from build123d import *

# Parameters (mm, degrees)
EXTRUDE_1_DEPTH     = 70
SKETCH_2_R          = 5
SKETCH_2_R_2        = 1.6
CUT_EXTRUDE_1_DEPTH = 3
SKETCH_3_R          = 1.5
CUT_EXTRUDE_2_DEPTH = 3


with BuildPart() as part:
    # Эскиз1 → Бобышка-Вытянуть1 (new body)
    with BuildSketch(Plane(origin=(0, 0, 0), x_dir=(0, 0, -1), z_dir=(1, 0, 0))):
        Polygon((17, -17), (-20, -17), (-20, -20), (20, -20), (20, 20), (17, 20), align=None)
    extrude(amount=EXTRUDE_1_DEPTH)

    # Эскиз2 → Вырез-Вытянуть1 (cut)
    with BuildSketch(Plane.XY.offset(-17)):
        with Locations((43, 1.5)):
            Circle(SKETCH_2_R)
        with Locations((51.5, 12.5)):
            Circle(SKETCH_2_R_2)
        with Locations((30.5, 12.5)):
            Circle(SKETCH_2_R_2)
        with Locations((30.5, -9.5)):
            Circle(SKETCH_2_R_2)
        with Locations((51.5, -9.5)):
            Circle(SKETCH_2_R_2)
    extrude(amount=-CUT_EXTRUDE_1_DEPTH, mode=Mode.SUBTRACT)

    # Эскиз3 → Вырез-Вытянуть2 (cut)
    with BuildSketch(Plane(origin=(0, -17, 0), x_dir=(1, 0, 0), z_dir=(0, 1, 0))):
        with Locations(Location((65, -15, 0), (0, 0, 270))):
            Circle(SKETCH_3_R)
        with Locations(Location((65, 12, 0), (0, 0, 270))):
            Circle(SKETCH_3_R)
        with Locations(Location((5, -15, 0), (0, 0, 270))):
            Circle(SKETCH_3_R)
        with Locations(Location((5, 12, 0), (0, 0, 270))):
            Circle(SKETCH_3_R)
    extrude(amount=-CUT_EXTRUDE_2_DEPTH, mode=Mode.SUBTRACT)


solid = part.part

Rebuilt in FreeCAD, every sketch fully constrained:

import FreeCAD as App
import Part
import Sketcher
Q = App.Units.Quantity


def add_polygon(sketch, points):
    """Adds a closed chain of lines whose ends are joined by coincident constraints."""
    first, n = sketch.GeometryCount, len(points)
    for a, b in zip(points, points[1:] + points[:1]):
        sketch.addGeometry(Part.LineSegment(App.Vector(*a, 0), App.Vector(*b, 0)), False)
    for i in range(n):
        sketch.addConstraint(Sketcher.Constraint("Coincident", first + i, 2, first + (i + 1) % n, 1))

doc = App.newDocument("Part")
body = doc.addObject("PartDesign::Body", "Body")

# Sketch on YZ plane
sketch1 = body.newObject("Sketcher::SketchObject", "Sketch")
sketch1.AttachmentSupport = (doc.getObject("YZ_Plane"), [""])
sketch1.MapMode = "FlatFace"
add_polygon(sketch1, [(-17, -17), (-17, 20), (-20, 20), (-20, -20), (20, -20), (20, -17)])  # lines 0-5
sketch1.addConstraint([
    Sketcher.Constraint("Vertical", 0),
    Sketcher.Constraint("Horizontal", 1),
    Sketcher.Constraint("Vertical", 2),
    Sketcher.Constraint("Horizontal", 3),
    Sketcher.Constraint("Vertical", 4),
    Sketcher.Constraint("Horizontal", 5),
    Sketcher.Constraint("Symmetric", 1, 2, 3, 2, -1, 1),
    Sketcher.Constraint("Equal", 5, 0),
    Sketcher.Constraint("Equal", 3, 2),
    Sketcher.Constraint("DistanceX", 1, 2, 1, 1, Q("3 mm")),
    Sketcher.Constraint("DistanceX", 3, 1, 3, 2, Q("40 mm")),
])
pad1 = body.newObject("PartDesign::Pad", "Pad")
pad1.Profile = sketch1
pad1.Length = 70

# Sketch on XY plane
sketch2 = body.newObject("Sketcher::SketchObject", "Sketch001")
sketch2.AttachmentSupport = (doc.getObject("XY_Plane"), [""])
sketch2.MapMode = "FlatFace"
sketch2.AttachmentOffset = App.Placement(App.Vector(0, 0, -17), App.Rotation())
sketch2.addGeometry([
    Part.Circle(App.Vector(43, 1.5, 0), App.Vector(0, 0, 1), 5),  # 0
    Part.Circle(App.Vector(51.5, 12.5, 0), App.Vector(0, 0, 1), 1.6),  # 1
    Part.Circle(App.Vector(30.5, 12.5, 0), App.Vector(0, 0, 1), 1.6),  # 2
    Part.Circle(App.Vector(30.5, -9.5, 0), App.Vector(0, 0, 1), 1.6),  # 3
    Part.Circle(App.Vector(51.5, -9.5, 0), App.Vector(0, 0, 1), 1.6),  # 4
], False)
sketch2.addConstraint([
    Sketcher.Constraint("Equal", 1, 2),
    Sketcher.Constraint("Equal", 2, 3),
    Sketcher.Constraint("Equal", 3, 4),
    Sketcher.Constraint("Horizontal", 1, 3, 2, 3),
    Sketcher.Constraint("Horizontal", 3, 3, 4, 3),
    Sketcher.Constraint("Vertical", 2, 3, 3, 3),
    Sketcher.Constraint("Vertical", 1, 3, 4, 3),
    Sketcher.Constraint("Diameter", 0, Q("10 mm")),
    Sketcher.Constraint("Diameter", 1, Q("3.2 mm")),
    Sketcher.Constraint("DistanceX", -1, 1, 0, 3, Q("43 mm")),
    Sketcher.Constraint("DistanceY", 0, 3, 1, 3, Q("11 mm")),
    Sketcher.Constraint("DistanceX", 2, 3, 1, 3, Q("21 mm")),
    Sketcher.Constraint("DistanceY", 3, 3, 0, 3, Q("11 mm")),
    Sketcher.Constraint("DistanceY", -1, 1, 0, 3, Q("1.5 mm")),
    Sketcher.Constraint("DistanceX", -1, 1, 1, 3, Q("51.5 mm")),
])
pocket1 = body.newObject("PartDesign::Pocket", "Pocket")
pocket1.Profile = sketch2
pocket1.Length = 3

# Sketch on XZ plane
sketch3 = body.newObject("Sketcher::SketchObject", "Sketch002")
sketch3.AttachmentSupport = (doc.getObject("XZ_Plane"), [""])
sketch3.MapMode = "FlatFace"
sketch3.AttachmentOffset = App.Placement(App.Vector(0, 0, 17), App.Rotation())
sketch3.addGeometry([
    Part.Circle(App.Vector(65, 15, 0), App.Vector(0, 0, 1), 1.5),
    Part.Circle(App.Vector(65, -12, 0), App.Vector(0, 0, 1), 1.5),
    Part.Circle(App.Vector(5, 15, 0), App.Vector(0, 0, 1), 1.5),
    Part.Circle(App.Vector(5, -12, 0), App.Vector(0, 0, 1), 1.5),
], False)
sketch3.addConstraint([
    Sketcher.Constraint("Equal", 0, 1),
    Sketcher.Constraint("Equal", 1, 2),
    Sketcher.Constraint("Equal", 2, 3),
    Sketcher.Constraint("Horizontal", 0, 3, 2, 3),
    Sketcher.Constraint("Horizontal", 1, 3, 3, 3),
    Sketcher.Constraint("Vertical", 0, 3, 1, 3),
    Sketcher.Constraint("Vertical", 2, 3, 3, 3),
    Sketcher.Constraint("Diameter", 0, Q("3 mm")),
    Sketcher.Constraint("DistanceX", -1, 1, 0, 3, Q("65 mm")),
    Sketcher.Constraint("DistanceY", -1, 1, 0, 3, Q("15 mm")),
    Sketcher.Constraint("DistanceY", 1, 3, -1, 1, Q("12 mm")),
    Sketcher.Constraint("DistanceX", -1, 1, 2, 3, Q("5 mm")),
])
pocket2 = body.newObject("PartDesign::Pocket", "Pocket001")
pocket2.Profile = sketch3
pocket2.Length = 3
pocket2.Reversed = True

doc.recompute()
